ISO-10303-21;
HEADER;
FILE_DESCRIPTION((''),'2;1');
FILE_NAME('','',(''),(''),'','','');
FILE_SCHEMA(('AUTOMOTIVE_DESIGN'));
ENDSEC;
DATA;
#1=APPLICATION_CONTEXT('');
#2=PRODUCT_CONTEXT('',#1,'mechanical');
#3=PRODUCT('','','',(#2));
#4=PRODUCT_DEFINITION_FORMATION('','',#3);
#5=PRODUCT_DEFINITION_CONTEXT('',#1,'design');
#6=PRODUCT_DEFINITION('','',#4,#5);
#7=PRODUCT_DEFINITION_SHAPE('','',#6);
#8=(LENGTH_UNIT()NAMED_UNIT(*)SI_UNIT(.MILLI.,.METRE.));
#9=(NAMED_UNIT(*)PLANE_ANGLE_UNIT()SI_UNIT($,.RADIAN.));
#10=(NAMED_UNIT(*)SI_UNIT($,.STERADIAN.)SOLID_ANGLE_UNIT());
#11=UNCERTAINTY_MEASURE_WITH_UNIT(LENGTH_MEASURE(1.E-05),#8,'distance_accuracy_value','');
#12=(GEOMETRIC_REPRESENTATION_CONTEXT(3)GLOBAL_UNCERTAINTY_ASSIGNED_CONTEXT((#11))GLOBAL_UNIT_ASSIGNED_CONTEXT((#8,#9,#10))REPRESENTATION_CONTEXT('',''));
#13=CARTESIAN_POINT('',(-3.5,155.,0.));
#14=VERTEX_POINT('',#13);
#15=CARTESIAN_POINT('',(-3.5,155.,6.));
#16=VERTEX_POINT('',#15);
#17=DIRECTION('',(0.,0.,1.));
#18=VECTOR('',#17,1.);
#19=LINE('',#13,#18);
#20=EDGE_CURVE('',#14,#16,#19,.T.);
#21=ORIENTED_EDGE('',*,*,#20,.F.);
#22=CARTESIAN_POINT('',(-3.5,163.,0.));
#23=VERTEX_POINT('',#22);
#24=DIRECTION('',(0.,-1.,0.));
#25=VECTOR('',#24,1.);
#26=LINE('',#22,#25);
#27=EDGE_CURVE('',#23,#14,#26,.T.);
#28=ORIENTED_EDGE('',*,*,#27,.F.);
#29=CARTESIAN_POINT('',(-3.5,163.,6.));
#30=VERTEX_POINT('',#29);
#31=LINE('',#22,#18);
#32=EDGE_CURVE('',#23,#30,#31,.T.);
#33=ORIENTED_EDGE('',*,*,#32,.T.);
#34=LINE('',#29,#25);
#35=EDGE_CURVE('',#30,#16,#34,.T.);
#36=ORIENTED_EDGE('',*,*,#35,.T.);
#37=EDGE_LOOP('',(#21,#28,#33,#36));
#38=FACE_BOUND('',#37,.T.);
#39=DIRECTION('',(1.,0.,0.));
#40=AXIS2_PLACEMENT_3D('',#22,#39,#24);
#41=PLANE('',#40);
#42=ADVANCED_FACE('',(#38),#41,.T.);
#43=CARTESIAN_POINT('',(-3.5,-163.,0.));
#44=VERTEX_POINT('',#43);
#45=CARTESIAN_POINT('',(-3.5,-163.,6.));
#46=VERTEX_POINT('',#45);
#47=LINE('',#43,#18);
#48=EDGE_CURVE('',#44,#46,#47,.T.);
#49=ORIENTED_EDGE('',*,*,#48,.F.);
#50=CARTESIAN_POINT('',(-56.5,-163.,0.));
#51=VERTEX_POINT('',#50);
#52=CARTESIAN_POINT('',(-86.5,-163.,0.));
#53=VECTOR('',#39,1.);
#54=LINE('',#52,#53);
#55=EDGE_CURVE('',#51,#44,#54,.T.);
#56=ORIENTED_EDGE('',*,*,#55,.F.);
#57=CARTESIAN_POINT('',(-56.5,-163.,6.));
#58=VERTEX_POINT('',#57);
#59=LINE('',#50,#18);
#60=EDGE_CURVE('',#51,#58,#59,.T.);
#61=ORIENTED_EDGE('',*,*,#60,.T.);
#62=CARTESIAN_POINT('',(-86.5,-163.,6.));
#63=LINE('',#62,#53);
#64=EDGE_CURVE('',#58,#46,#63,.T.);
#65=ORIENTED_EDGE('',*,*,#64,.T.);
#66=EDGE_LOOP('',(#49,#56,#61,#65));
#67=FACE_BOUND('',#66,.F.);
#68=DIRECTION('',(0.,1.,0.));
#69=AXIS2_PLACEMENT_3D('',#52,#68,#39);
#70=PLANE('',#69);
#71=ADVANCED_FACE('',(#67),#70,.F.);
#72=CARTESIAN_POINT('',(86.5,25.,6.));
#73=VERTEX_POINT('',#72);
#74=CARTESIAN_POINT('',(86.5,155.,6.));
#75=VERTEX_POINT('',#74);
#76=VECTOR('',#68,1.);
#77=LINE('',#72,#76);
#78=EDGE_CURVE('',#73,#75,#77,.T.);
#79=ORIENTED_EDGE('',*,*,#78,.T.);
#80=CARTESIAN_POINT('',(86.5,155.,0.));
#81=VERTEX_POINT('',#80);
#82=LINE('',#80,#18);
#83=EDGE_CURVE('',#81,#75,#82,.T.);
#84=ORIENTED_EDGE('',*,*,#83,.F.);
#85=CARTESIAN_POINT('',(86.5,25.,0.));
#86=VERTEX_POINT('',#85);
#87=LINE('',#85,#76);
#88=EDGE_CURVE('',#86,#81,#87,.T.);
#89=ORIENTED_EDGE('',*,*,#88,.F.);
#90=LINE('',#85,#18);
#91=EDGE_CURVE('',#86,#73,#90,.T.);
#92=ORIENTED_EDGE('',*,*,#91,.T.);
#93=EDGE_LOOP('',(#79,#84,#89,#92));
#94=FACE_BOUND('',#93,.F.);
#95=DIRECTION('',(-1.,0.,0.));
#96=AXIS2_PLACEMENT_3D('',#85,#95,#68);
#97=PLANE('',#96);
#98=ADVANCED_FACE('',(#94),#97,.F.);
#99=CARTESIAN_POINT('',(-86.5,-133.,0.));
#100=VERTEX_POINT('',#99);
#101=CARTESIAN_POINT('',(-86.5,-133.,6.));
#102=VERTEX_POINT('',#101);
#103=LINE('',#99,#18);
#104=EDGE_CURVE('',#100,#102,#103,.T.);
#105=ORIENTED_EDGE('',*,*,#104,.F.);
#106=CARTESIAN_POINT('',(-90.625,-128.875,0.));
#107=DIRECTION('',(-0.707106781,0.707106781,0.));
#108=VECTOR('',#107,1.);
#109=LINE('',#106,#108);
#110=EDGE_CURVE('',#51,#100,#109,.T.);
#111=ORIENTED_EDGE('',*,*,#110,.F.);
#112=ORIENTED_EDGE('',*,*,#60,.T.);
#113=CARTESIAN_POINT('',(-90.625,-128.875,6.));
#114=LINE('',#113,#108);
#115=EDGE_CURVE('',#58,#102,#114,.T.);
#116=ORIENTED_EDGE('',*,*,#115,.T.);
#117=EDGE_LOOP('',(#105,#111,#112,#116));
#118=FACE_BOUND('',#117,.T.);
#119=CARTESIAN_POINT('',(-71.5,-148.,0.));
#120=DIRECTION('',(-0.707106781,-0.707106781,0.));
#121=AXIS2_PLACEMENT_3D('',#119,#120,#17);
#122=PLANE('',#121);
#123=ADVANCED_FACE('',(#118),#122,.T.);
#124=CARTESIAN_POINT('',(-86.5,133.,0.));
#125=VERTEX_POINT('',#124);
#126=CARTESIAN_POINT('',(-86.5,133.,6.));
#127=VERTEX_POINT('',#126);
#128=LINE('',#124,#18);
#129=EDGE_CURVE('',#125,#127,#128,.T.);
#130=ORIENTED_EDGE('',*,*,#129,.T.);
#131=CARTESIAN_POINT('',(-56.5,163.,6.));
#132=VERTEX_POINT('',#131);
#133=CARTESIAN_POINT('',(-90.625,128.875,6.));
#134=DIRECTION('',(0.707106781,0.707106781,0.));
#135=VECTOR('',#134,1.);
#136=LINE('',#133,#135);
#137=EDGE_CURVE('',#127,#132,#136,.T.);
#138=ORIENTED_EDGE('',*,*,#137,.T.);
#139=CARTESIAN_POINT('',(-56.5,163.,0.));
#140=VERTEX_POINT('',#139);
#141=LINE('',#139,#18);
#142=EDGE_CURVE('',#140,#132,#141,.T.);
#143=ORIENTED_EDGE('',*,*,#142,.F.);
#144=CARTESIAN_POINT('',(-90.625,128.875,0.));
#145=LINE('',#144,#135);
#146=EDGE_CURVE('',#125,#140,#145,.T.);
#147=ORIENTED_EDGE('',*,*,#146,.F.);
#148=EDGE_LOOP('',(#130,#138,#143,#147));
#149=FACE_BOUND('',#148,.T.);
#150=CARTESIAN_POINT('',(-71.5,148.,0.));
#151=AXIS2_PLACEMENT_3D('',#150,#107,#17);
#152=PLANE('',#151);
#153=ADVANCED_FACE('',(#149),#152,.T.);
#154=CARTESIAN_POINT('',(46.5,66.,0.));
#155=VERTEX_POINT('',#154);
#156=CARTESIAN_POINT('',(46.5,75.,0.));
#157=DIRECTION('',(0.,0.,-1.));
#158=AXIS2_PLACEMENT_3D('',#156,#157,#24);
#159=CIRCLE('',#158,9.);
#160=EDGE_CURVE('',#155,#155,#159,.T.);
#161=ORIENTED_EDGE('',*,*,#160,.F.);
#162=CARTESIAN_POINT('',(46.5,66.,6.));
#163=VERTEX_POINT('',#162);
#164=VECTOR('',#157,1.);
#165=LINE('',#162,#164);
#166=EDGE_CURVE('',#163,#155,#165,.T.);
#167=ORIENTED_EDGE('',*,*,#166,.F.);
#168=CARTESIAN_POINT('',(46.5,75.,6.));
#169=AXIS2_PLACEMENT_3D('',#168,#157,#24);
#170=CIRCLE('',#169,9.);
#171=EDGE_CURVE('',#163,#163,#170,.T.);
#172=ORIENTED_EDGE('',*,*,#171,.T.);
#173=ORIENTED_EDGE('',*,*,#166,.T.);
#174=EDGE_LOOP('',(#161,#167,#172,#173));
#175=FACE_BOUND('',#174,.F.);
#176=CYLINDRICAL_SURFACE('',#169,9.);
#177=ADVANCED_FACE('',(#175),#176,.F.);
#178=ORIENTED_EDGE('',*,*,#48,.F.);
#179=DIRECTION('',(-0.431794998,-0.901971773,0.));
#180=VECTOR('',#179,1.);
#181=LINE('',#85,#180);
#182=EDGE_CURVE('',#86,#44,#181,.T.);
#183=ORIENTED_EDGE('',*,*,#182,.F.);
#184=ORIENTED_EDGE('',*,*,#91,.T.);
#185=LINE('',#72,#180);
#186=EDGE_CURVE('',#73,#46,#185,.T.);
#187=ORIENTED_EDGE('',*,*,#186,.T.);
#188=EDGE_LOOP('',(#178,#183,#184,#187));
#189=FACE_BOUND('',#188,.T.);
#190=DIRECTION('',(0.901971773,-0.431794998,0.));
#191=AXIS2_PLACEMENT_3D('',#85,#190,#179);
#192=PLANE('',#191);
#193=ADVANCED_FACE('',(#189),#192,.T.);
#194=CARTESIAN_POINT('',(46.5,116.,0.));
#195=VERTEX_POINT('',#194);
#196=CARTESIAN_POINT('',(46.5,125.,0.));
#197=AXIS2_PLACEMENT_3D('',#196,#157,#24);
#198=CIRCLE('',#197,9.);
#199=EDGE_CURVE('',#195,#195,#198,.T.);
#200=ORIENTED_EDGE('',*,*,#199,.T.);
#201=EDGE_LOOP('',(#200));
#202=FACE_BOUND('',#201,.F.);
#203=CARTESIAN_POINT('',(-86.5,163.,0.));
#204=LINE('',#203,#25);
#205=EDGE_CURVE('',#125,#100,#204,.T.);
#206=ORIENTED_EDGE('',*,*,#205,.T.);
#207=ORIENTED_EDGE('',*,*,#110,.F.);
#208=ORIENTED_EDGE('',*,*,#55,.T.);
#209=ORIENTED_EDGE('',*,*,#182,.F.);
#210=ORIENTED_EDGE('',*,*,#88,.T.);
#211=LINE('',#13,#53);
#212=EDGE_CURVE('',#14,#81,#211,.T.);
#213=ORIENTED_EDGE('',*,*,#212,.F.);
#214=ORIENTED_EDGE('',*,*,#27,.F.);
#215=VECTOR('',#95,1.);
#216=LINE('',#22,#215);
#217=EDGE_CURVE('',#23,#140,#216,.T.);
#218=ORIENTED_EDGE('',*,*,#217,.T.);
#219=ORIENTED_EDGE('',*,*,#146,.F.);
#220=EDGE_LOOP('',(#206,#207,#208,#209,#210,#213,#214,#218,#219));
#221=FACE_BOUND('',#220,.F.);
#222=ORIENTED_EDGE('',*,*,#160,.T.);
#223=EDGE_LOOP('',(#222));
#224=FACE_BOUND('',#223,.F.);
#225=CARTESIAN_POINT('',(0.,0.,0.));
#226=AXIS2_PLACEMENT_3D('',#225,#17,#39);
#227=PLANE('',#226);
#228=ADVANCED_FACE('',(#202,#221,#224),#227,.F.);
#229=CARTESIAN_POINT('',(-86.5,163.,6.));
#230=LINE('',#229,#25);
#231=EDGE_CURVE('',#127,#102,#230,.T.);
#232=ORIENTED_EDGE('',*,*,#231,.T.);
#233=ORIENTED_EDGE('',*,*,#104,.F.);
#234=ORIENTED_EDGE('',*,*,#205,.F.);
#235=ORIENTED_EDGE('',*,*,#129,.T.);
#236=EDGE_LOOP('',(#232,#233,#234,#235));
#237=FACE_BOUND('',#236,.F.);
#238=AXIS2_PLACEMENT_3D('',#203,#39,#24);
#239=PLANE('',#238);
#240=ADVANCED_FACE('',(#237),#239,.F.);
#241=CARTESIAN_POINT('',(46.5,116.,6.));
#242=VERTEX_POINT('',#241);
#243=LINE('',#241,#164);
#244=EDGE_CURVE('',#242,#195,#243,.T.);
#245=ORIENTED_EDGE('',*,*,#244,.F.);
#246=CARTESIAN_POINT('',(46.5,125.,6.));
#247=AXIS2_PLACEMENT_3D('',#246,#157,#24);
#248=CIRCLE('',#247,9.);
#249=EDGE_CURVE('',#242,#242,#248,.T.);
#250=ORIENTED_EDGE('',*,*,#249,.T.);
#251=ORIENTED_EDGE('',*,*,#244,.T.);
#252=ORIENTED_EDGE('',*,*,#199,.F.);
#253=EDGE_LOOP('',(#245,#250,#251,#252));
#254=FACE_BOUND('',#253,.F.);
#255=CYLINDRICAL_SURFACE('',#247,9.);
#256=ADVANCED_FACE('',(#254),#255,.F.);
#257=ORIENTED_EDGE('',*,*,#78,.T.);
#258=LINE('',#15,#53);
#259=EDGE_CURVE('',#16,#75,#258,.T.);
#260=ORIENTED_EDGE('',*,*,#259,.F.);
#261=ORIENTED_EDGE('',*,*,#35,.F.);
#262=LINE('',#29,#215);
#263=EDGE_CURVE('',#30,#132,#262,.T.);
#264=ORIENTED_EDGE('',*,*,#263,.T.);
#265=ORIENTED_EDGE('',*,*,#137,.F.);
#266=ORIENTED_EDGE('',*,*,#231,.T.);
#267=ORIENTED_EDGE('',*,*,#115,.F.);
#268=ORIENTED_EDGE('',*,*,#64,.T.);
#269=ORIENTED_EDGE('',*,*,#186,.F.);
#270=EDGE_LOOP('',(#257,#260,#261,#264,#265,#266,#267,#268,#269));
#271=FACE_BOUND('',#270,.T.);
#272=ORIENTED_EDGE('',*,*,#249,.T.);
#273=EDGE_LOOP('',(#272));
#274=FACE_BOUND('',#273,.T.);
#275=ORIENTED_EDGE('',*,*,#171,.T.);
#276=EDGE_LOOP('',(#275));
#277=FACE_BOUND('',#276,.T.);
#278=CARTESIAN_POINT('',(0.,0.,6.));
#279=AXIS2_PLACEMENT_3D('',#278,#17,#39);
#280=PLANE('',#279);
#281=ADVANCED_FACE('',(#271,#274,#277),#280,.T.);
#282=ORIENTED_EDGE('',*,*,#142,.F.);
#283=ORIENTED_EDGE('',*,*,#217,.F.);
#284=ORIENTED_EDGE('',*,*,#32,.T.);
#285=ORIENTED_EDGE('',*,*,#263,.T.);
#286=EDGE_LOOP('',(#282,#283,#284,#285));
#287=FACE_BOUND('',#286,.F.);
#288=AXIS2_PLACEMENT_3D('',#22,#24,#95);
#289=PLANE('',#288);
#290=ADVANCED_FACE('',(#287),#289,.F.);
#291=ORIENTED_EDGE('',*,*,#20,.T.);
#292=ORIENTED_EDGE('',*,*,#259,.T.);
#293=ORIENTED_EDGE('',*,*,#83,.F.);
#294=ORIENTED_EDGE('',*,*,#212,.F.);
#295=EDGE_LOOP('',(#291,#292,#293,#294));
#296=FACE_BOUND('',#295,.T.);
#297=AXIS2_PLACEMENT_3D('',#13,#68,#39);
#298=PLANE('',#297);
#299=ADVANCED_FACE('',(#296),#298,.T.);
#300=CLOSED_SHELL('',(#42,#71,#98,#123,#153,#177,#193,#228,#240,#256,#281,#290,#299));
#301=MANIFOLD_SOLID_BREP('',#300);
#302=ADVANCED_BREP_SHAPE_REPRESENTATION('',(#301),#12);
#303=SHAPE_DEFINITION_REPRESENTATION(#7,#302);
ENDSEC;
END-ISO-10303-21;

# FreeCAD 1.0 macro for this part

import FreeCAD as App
import Part
import Sketcher
Q = App.Units.Quantity


def edges_at(feature, points):
    """Names of the edges that pass closest to the given points."""
    edges = feature.Shape.Edges
    near = lambda p: min(range(len(edges)), key=lambda i: edges[i].distToShape(Part.Vertex(*p))[0])
    return sorted({f"Edge{near(p) + 1}" for p in points})


def add_polygon(sketch, points):
    """Adds a closed chain of lines whose ends are joined by coincident constraints."""
    first, n = sketch.GeometryCount, len(points)
    for a, b in zip(points, points[1:] + points[:1]):
        sketch.addGeometry(Part.LineSegment(App.Vector(*a, 0), App.Vector(*b, 0)), False)
    for i in range(n):
        sketch.addConstraint(Sketcher.Constraint("Coincident", first + i, 2, first + (i + 1) % n, 1))

doc = App.newDocument("Part")
body = doc.addObject("PartDesign::Body", "Body")

sketch1 = doc.addObject("Sketcher::SketchObject", "Sketch")
body.addObject(sketch1)
sketch1.AttachmentSupport = (doc.XY_Plane, [""])
sketch1.MapMode = "FlatFace"
add_polygon(sketch1, [(-4, 155), (-4, 163), (-86, 163), (-86, -163), (-4, -163), (86, 25), (86, 155)])
sketch1.addConstraint(Sketcher.Constraint("Vertical", 0))
sketch1.addConstraint(Sketcher.Constraint("Horizontal", 1))
sketch1.addConstraint(Sketcher.Constraint("Vertical", 2))
sketch1.addConstraint(Sketcher.Constraint("Horizontal", 3))
sketch1.addConstraint(Sketcher.Constraint("Vertical", 5))
sketch1.addConstraint(Sketcher.Constraint("Horizontal", 6))
sketch1.addConstraint(Sketcher.Constraint("Symmetric", 0, 2, 3, 2, -1))
sketch1.addConstraint(Sketcher.Constraint("DistanceX", 1, 2, 1, 1, Q("83 mm")))
sketch1.addConstraint(Sketcher.Constraint("DistanceY", 2, 2, 2, 1, Q("326 mm")))
sketch1.addConstraint(Sketcher.Constraint("DistanceX", 6, 2, 6, 1, Q("90 mm")))
sketch1.addConstraint(Sketcher.Constraint("DistanceY", 0, 1, 0, 2, Q("8 mm")))
sketch1.addConstraint(Sketcher.Constraint("DistanceY", 5, 1, 5, 2, Q("130 mm")))
sketch1.addConstraint(Sketcher.Constraint("DistanceX", 0, 2, -1, 1, Q("3.5 mm")))
pad1 = doc.addObject("PartDesign::Pad", "Pad")
body.addObject(pad1)
pad1.Profile = sketch1
pad1.Length = 6
doc.recompute()

chamfer = doc.addObject("PartDesign::Chamfer", "Chamfer")
body.addObject(chamfer)
chamfer.Base = (pad1, edges_at(pad1, [(-86.5, -163, 3), (-86.5, 163, 3)]))
chamfer.Size = 30

sketch2 = doc.addObject("Sketcher::SketchObject", "Sketch001")
body.addObject(sketch2)
sketch2.AttachmentSupport = (doc.XY_Plane, [""])
sketch2.MapMode = "FlatFace"
sketch2.AttachmentOffset = App.Placement(App.Vector(0, 0, 6), App.Rotation())
sketch2.addGeometry(Part.Circle(App.Vector(46, 125, 0), App.Vector(0, 0, 1), 9), False)
sketch2.addGeometry(Part.Circle(App.Vector(46, 75, 0), App.Vector(0, 0, 1), 9), False)
sketch2.addConstraint(Sketcher.Constraint("Equal", 0, 1))
sketch2.addConstraint(Sketcher.Constraint("Vertical", 0, 3, 1, 3))
sketch2.addConstraint(Sketcher.Constraint("Diameter", 0, Q("18 mm")))
sketch2.addConstraint(Sketcher.Constraint("DistanceY", -1, 1, 0, 3, Q("125 mm")))
sketch2.addConstraint(Sketcher.Constraint("DistanceY", -1, 1, 1, 3, Q("75 mm")))
sketch2.addConstraint(Sketcher.Constraint("DistanceX", -1, 1, 0, 3, Q("46.5 mm")))
doc.recompute()
hole = doc.addObject("PartDesign::Hole", "Hole")
body.addObject(hole)
hole.Profile = sketch2
hole.ThreadType = "None"
hole.Diameter = 18
hole.DepthType = "ThroughAll"

doc.recompute()
